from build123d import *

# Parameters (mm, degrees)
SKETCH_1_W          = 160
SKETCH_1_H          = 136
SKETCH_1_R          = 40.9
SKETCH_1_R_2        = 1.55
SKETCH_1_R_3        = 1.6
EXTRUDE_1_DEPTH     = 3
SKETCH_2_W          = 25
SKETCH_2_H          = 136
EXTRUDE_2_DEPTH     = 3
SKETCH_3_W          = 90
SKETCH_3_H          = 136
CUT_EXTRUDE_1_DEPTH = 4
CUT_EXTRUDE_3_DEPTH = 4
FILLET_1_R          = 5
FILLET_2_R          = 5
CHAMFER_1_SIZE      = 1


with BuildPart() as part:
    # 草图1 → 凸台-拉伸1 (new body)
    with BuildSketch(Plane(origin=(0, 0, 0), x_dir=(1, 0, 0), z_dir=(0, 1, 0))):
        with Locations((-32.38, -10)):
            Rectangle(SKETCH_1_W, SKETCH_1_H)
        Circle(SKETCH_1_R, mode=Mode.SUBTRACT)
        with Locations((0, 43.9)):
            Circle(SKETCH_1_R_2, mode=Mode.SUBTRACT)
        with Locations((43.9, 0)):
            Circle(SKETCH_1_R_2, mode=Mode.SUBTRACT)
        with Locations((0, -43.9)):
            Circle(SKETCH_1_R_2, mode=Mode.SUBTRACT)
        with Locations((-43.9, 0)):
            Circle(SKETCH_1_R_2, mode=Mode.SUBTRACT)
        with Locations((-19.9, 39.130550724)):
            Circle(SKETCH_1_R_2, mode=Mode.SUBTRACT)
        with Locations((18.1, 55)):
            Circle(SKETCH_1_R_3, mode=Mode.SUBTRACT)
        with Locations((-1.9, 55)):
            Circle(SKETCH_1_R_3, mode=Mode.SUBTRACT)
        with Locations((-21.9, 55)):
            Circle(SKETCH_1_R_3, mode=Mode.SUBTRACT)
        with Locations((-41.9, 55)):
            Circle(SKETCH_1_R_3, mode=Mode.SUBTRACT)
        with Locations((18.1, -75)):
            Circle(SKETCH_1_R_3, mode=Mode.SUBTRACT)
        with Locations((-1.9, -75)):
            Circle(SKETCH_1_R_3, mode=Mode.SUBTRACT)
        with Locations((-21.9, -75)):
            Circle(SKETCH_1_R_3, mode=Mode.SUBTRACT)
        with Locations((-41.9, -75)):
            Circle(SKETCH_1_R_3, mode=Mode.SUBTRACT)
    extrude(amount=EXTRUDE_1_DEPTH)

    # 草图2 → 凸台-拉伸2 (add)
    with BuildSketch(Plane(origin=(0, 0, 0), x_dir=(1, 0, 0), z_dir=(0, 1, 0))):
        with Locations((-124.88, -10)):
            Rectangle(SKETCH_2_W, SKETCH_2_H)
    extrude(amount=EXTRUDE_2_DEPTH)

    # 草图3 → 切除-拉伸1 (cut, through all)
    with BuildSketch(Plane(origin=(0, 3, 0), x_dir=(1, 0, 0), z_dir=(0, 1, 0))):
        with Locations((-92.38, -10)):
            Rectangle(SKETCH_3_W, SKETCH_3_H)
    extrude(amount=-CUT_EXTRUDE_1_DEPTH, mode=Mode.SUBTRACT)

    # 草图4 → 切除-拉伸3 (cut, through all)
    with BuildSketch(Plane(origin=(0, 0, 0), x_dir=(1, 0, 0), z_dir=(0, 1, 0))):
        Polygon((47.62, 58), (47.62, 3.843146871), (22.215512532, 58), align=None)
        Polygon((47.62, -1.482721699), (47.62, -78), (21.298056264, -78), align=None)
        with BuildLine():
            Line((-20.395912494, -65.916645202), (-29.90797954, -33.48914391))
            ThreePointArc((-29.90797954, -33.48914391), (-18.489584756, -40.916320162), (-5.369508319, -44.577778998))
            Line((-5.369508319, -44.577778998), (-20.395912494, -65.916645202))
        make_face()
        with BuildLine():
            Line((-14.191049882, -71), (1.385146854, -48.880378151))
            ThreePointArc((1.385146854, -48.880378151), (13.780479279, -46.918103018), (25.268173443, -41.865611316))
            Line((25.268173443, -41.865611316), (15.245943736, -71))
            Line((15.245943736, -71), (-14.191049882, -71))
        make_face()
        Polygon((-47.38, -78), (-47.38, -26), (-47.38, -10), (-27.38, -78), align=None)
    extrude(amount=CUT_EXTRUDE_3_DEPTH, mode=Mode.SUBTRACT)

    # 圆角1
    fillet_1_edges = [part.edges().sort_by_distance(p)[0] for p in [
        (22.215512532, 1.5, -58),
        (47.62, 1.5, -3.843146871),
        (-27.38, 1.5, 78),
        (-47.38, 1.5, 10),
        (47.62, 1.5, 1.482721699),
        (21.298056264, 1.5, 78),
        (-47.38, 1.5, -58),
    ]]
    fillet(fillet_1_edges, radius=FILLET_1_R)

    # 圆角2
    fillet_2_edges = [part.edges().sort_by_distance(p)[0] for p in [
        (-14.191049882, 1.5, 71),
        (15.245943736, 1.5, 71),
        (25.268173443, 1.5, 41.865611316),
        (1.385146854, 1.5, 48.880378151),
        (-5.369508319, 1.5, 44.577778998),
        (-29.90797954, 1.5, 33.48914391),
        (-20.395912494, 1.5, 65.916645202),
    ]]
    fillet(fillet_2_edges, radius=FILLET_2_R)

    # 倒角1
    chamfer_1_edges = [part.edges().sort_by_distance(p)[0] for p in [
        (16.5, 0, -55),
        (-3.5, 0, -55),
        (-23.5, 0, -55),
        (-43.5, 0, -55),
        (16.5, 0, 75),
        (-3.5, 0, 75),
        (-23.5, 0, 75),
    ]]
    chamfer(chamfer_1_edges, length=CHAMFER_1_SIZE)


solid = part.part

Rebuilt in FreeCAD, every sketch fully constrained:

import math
import FreeCAD as App
import Part
import Sketcher
from FreeCAD import Vector
Q = App.Units.Quantity


def edges_at(feature, points):
    """Names of the edges that pass closest to the given points."""
    edges = feature.Shape.Edges
    near = lambda p: min(range(len(edges)), key=lambda i: edges[i].distToShape(Part.Vertex(*p))[0])
    return sorted({f"Edge{near(p) + 1}" for p in points})

doc = App.newDocument("Part")
body = doc.addObject("PartDesign::Body", "Body")

# Sketch on XZ plane
sketch1 = doc.addObject("Sketcher::SketchObject", "Sketch")
body.addObject(sketch1)
sketch1.AttachmentSupport = (doc.XZ_Plane, [""])
sketch1.MapMode = "FlatFace"
sketch1.addGeometry([
    Part.LineSegment(Vector(-112.4, -58, 0), Vector(-112.4, 78, 0)),  # 0
    Part.LineSegment(Vector(-112.4, 78, 0), Vector(47.6, 78, 0)),  # 1
    Part.LineSegment(Vector(47.6, 78, 0), Vector(47.6, -58, 0)),  # 2
    Part.LineSegment(Vector(47.6, -58, 0), Vector(-112.4, -58, 0)),  # 3
    Part.Circle(Vector(-41.9, 75, 0), Vector(0, 0, 1), 1.6),  # 4
    Part.Circle(Vector(-21.9, 75, 0), Vector(0, 0, 1), 1.6),  # 5
    Part.Circle(Vector(-1.9, 75, 0), Vector(0, 0, 1), 1.6),  # 6
    Part.Circle(Vector(18.1, 75, 0), Vector(0, 0, 1), 1.6),  # 7
    Part.Circle(Vector(0, 43.9, 0), Vector(0, 0, 1), 1.6),  # 8
    Part.Circle(Vector(-43.9, 0, 0), Vector(0, 0, 1), 1.6),  # 9
    Part.Circle(Vector(-41.9, -55, 0), Vector(0, 0, 1), 1.6),  # 10
    Part.Circle(Vector(-19.9, -39.1, 0), Vector(0, 0, 1), 1.6),  # 11
    Part.Circle(Vector(-21.9, -55, 0), Vector(0, 0, 1), 1.6),  # 12
    Part.Circle(Vector(-1.9, -55, 0), Vector(0, 0, 1), 1.6),  # 13
    Part.Circle(Vector(0, 0, 0), Vector(0, 0, 1), 40.9),  # 14
    Part.Circle(Vector(43.9, 0, 0), Vector(0, 0, 1), 1.6),  # 15
    Part.Circle(Vector(0, -43.9, 0), Vector(0, 0, 1), 1.6),  # 16
    Part.Circle(Vector(18.1, -55, 0), Vector(0, 0, 1), 1.6),  # 17
], False)
sketch1.addConstraint([
    Sketcher.Constraint("Coincident", 0, 2, 1, 1),
    Sketcher.Constraint("Coincident", 1, 2, 2, 1),
    Sketcher.Constraint("Coincident", 2, 2, 3, 1),
    Sketcher.Constraint("Coincident", 3, 2, 0, 1),
    Sketcher.Constraint("Vertical", 0),
    Sketcher.Constraint("Horizontal", 1),
    Sketcher.Constraint("Vertical", 2),
    Sketcher.Constraint("Horizontal", 3),
    Sketcher.Constraint("Coincident", 14, 3, -1, 1),
    Sketcher.Constraint("Equal", 4, 5),
    Sketcher.Constraint("Equal", 5, 6),
    Sketcher.Constraint("Equal", 6, 7),
    Sketcher.Constraint("Equal", 8, 9),
    Sketcher.Constraint("Equal", 7, 10),
    Sketcher.Constraint("Equal", 9, 11),
    Sketcher.Constraint("Equal", 10, 12),
    Sketcher.Constraint("Equal", 12, 13),
    Sketcher.Constraint("Equal", 11, 15),
    Sketcher.Constraint("Equal", 15, 16),
    Sketcher.Constraint("Equal", 13, 17),
    Sketcher.Constraint("Symmetric", 9, 3, 15, 3, -1, 1),
    Sketcher.Constraint("Symmetric", 8, 3, 16, 3, -1, 1),
    Sketcher.Constraint("PointOnObject", 8, 3, -2),
    Sketcher.Constraint("PointOnObject", 9, 3, -1),
    Sketcher.Constraint("Horizontal", 4, 3, 5, 3),
    Sketcher.Constraint("Horizontal", 5, 3, 6, 3),
    Sketcher.Constraint("Horizontal", 6, 3, 7, 3),
    Sketcher.Constraint("Horizontal", 10, 3, 12, 3),
    Sketcher.Constraint("Horizontal", 12, 3, 13, 3),
    Sketcher.Constraint("Horizontal", 13, 3, 17, 3),
    Sketcher.Constraint("Vertical", 4, 3, 10, 3),
    Sketcher.Constraint("Vertical", 5, 3, 12, 3),
    Sketcher.Constraint("Vertical", 6, 3, 13, 3),
    Sketcher.Constraint("Vertical", 7, 3, 17, 3),
    Sketcher.Constraint("Diameter", 4, Q("3.2 mm")),
    Sketcher.Constraint("Diameter", 8, Q("3.1 mm")),
    Sketcher.Constraint("Diameter", 14, Q("81.8 mm")),
    Sketcher.Constraint("DistanceX", 1, 1, 1, 2, Q("160 mm")),
    Sketcher.Constraint("DistanceY", 0, 1, 0, 2, Q("136 mm")),
    Sketcher.Constraint("DistanceY", -1, 1, 4, 3, Q("75 mm")),
    Sketcher.Constraint("DistanceY", 10, 3, -1, 1, Q("55 mm")),
    Sketcher.Constraint("DistanceY", -1, 1, 0, 2, Q("78 mm")),
    Sketcher.Constraint("DistanceX", 4, 3, 5, 3, Q("20 mm")),
    Sketcher.Constraint("DistanceX", 5, 3, 6, 3, Q("20 mm")),
    Sketcher.Constraint("DistanceX", 6, 3, 7, 3, Q("20 mm")),
    Sketcher.Constraint("DistanceX", 9, 3, 4, 3, Q("2 mm")),
    Sketcher.Constraint("DistanceX", 10, 3, 11, 3, Q("22 mm")),
    Sketcher.Constraint("DistanceX", 4, 3, -1, 1, Q("41.9 mm")),
    Sketcher.Constraint("DistanceY", -1, 1, 8, 3, Q("43.9 mm")),
    Sketcher.Constraint("DistanceX", 0, 2, -1, 1, Q("112.38 mm")),
    Sketcher.Constraint("DistanceY", 11, 3, -1, 1, Q("39.130551 mm")),
])
pad1 = doc.addObject("PartDesign::Pad", "Pad")
body.addObject(pad1)
pad1.Profile = sketch1
pad1.Length = 3
pad1.Reversed = True

# Sketch on XZ plane
sketch2 = doc.addObject("Sketcher::SketchObject", "Sketch001")
body.addObject(sketch2)
sketch2.AttachmentSupport = (doc.XZ_Plane, [""])
sketch2.MapMode = "FlatFace"
sketch2.addGeometry([
    Part.LineSegment(Vector(-137, -58, 0), Vector(-137, 78, 0)),
    Part.LineSegment(Vector(-137, 78, 0), Vector(-112, 78, 0)),
    Part.LineSegment(Vector(-112, 78, 0), Vector(-112, -58, 0)),
    Part.LineSegment(Vector(-112, -58, 0), Vector(-137, -58, 0)),
], False)
sketch2.addConstraint([
    Sketcher.Constraint("Coincident", 0, 2, 1, 1),
    Sketcher.Constraint("Coincident", 1, 2, 2, 1),
    Sketcher.Constraint("Coincident", 2, 2, 3, 1),
    Sketcher.Constraint("Coincident", 3, 2, 0, 1),
    Sketcher.Constraint("Vertical", 0),
    Sketcher.Constraint("Horizontal", 1),
    Sketcher.Constraint("Vertical", 2),
    Sketcher.Constraint("Horizontal", 3),
    Sketcher.Constraint("DistanceX", 1, 1, 1, 2, Q("25 mm")),
    Sketcher.Constraint("DistanceY", 0, 1, 0, 2, Q("136 mm")),
    Sketcher.Constraint("DistanceY", -1, 1, 0, 2, Q("78 mm")),
    Sketcher.Constraint("DistanceX", 0, 2, -1, 1, Q("137.38 mm")),
])
pad2 = doc.addObject("PartDesign::Pad", "Pad001")
body.addObject(pad2)
pad2.Profile = sketch2
pad2.Length = 3
pad2.Reversed = True

# Sketch on XZ plane
sketch3 = doc.addObject("Sketcher::SketchObject", "Sketch002")
body.addObject(sketch3)
sketch3.AttachmentSupport = (doc.XZ_Plane, [""])
sketch3.MapMode = "FlatFace"
sketch3.AttachmentOffset = App.Placement(Vector(0, 0, -3), App.Rotation())
sketch3.addGeometry([
    Part.LineSegment(Vector(-137, -58, 0), Vector(-137, 78, 0)),
    Part.LineSegment(Vector(-137, 78, 0), Vector(-47, 78, 0)),
    Part.LineSegment(Vector(-47, 78, 0), Vector(-47, -58, 0)),
    Part.LineSegment(Vector(-47, -58, 0), Vector(-137, -58, 0)),
], False)
sketch3.addConstraint([
    Sketcher.Constraint("Coincident", 0, 2, 1, 1),
    Sketcher.Constraint("Coincident", 1, 2, 2, 1),
    Sketcher.Constraint("Coincident", 2, 2, 3, 1),
    Sketcher.Constraint("Coincident", 3, 2, 0, 1),
    Sketcher.Constraint("Vertical", 0),
    Sketcher.Constraint("Horizontal", 1),
    Sketcher.Constraint("Vertical", 2),
    Sketcher.Constraint("Horizontal", 3),
    Sketcher.Constraint("DistanceX", 1, 1, 1, 2, Q("90 mm")),
    Sketcher.Constraint("DistanceY", 0, 1, 0, 2, Q("136 mm")),
    Sketcher.Constraint("DistanceY", -1, 1, 0, 2, Q("78 mm")),
    Sketcher.Constraint("DistanceX", 0, 2, -1, 1, Q("137.38 mm")),
])
pocket1 = doc.addObject("PartDesign::Pocket", "Pocket")
body.addObject(pocket1)
pocket1.Profile = sketch3
pocket1.Type = "ThroughAll"
pocket1.Reversed = True

# Sketch on XZ plane
sketch4 = doc.addObject("Sketcher::SketchObject", "Sketch003")
body.addObject(sketch4)
sketch4.AttachmentSupport = (doc.XZ_Plane, [""])
sketch4.MapMode = "FlatFace"
sketch4.addGeometry([
    Part.LineSegment(Vector(48, -4, 0), Vector(48, -58, 0)),  # 0
    Part.LineSegment(Vector(48, -58, 0), Vector(22, -58, 0)),  # 1
    Part.LineSegment(Vector(22, -58, 0), Vector(48, -4, 0)),  # 2
    Part.LineSegment(Vector(48, 78, 0), Vector(48, 1, 0)),  # 3
    Part.LineSegment(Vector(48, 1, 0), Vector(21, 78, 0)),  # 4
    Part.LineSegment(Vector(21, 78, 0), Vector(48, 78, 0)),  # 5
    Part.LineSegment(Vector(-30, 33, 0), Vector(-20, 66, 0)),  # 6
    Part.LineSegment(Vector(-20, 66, 0), Vector(-5, 45, 0)),  # 7
    Part.ArcOfCircle(Part.Circle(Vector(0, 0, 0), Vector(0, 0, 1), 45), math.radians(97), math.radians(132)),  # 8
    Part.LineSegment(Vector(1, 49, 0), Vector(-14, 71, 0)),  # 9
    Part.LineSegment(Vector(-14, 71, 0), Vector(15, 71, 0)),  # 10
    Part.LineSegment(Vector(15, 71, 0), Vector(25, 42, 0)),  # 11
    Part.ArcOfCircle(Part.Circle(Vector(0, 0, 0), Vector(0, 0, 1), 49), math.radians(59), math.radians(88)),  # 12
    Part.LineSegment(Vector(-47, 10, 0), Vector(-47, 78, 0)),  # 13
    Part.LineSegment(Vector(-47, 78, 0), Vector(-27, 78, 0)),  # 14
    Part.LineSegment(Vector(-27, 78, 0), Vector(-47, 10, 0)),  # 15
], False)
sketch4.addConstraint([
    Sketcher.Constraint("Coincident", 0, 2, 1, 1),
    Sketcher.Constraint("Coincident", 1, 2, 2, 1),
    Sketcher.Constraint("Coincident", 2, 2, 0, 1),
    Sketcher.Constraint("Coincident", 3, 2, 4, 1),
    Sketcher.Constraint("Coincident", 4, 2, 5, 1),
    Sketcher.Constraint("Coincident", 5, 2, 3, 1),
    Sketcher.Constraint("Coincident", 6, 2, 7, 1),
    Sketcher.Constraint("Coincident", 7, 2, 8, 1),
    Sketcher.Constraint("Coincident", 8, 2, 6, 1),
    Sketcher.Constraint("Coincident", 9, 2, 10, 1),
    Sketcher.Constraint("Coincident", 10, 2, 11, 1),
    Sketcher.Constraint("Coincident", 11, 2, 12, 1),
    Sketcher.Constraint("Coincident", 12, 2, 9, 1),
    Sketcher.Constraint("Coincident", 13, 2, 14, 1),
    Sketcher.Constraint("Coincident", 14, 2, 15, 1),
    Sketcher.Constraint("Coincident", 15, 2, 13, 1),
    Sketcher.Constraint("Vertical", 0),
    Sketcher.Constraint("Horizontal", 1),
    Sketcher.Constraint("Vertical", 3),
    Sketcher.Constraint("Horizontal", 5),
    Sketcher.Constraint("Horizontal", 10),
    Sketcher.Constraint("Vertical", 13),
    Sketcher.Constraint("Horizontal", 14),
    Sketcher.Constraint("Coincident", 8, 3, -1, 1),
    Sketcher.Constraint("Coincident", 12, 3, -1, 1),
    Sketcher.Constraint("Parallel", 7, 9),
    Sketcher.Constraint("Parallel", 4, 11),
    Sketcher.Constraint("Horizontal", 5, 2, 13, 2),
    Sketcher.Constraint("Vertical", 2, 2, 3, 2),
    Sketcher.Constraint("Radius", 8, Q("44.9 mm")),
    Sketcher.Constraint("Radius", 12, Q("48.9 mm")),
    Sketcher.Constraint("DistanceX", 14, 1, 14, 2, Q("20 mm")),
    Sketcher.Constraint("DistanceY", 13, 1, 13, 2, Q("68 mm")),
    Sketcher.Constraint("DistanceY", 0, 2, -1, 1, Q("58 mm")),
    Sketcher.Constraint("DistanceY", -1, 1, 4, 2, Q("78 mm")),
    Sketcher.Constraint("DistanceY", -1, 1, 9, 2, Q("71 mm")),
    Sketcher.Constraint("DistanceX", -1, 1, 0, 2, Q("47.62 mm")),
    Sketcher.Constraint("DistanceX", 13, 2, -1, 1, Q("47.38 mm")),
    Sketcher.Constraint("Distance", 4, Q("80.918098 mm")),
    Sketcher.Constraint("DistanceY", 3, 2, 3, 1, Q("76.517278 mm")),
    Sketcher.Constraint("DistanceY", 8, 2, 6, 2, Q("32.427501 mm")),
    Sketcher.Constraint("DistanceY", 7, 2, 12, 2, Q("4.302599 mm")),
    Sketcher.Constraint("Distance", 6, Q("33.79382 mm")),
    Sketcher.Constraint("Distance", 7, Q("26.09866 mm")),
    Sketcher.Constraint("Distance", 9, Q("27.053569 mm")),
    Sketcher.Constraint("DistanceX", 1, 2, 1, 1, Q("25.404487 mm")),
    Sketcher.Constraint("DistanceX", 10, 1, 10, 2, Q("29.436994 mm")),
    Sketcher.Constraint("DistanceY", 0, 2, 0, 1, Q("54.156853 mm")),
])
pocket2 = doc.addObject("PartDesign::Pocket", "Pocket001")
body.addObject(pocket2)
pocket2.Profile = sketch4
pocket2.Type = "ThroughAll"
doc.recompute()

fillet = doc.addObject("PartDesign::Fillet", "Fillet")
body.addObject(fillet)
fillet.Base = (pocket2, edges_at(pocket2, [
    (22.216, 1.5, -58),
    (47.62, 1.5, -3.843),
    (-27.38, 1.5, 78),
    (-47.38, 1.5, 10),
    (47.62, 1.5, 1.483),
    (21.298, 1.5, 78),
    (-47.38, 1.5, -58),
]))
fillet.Radius = 5
doc.recompute()

fillet2 = doc.addObject("PartDesign::Fillet", "Fillet001")
body.addObject(fillet2)
fillet2.Base = (fillet, edges_at(fillet, [
    (-14.191, 1.5, 71),
    (15.246, 1.5, 71),
    (25.268, 1.5, 41.866),
    (1.385, 1.5, 48.88),
    (-5.37, 1.5, 44.578),
    (-29.908, 1.5, 33.489),
    (-20.396, 1.5, 65.917),
]))
fillet2.Radius = 5
doc.recompute()

chamfer = doc.addObject("PartDesign::Chamfer", "Chamfer")
body.addObject(chamfer)
chamfer.Base = (fillet2, edges_at(fillet2, [
    (16.5, 0, -55),
    (-3.5, 0, -55),
    (-23.5, 0, -55),
    (-43.5, 0, -55),
    (16.5, 0, 75),
    (-3.5, 0, 75),
    (-23.5, 0, 75),
]))
chamfer.Size = 1

doc.recompute()
